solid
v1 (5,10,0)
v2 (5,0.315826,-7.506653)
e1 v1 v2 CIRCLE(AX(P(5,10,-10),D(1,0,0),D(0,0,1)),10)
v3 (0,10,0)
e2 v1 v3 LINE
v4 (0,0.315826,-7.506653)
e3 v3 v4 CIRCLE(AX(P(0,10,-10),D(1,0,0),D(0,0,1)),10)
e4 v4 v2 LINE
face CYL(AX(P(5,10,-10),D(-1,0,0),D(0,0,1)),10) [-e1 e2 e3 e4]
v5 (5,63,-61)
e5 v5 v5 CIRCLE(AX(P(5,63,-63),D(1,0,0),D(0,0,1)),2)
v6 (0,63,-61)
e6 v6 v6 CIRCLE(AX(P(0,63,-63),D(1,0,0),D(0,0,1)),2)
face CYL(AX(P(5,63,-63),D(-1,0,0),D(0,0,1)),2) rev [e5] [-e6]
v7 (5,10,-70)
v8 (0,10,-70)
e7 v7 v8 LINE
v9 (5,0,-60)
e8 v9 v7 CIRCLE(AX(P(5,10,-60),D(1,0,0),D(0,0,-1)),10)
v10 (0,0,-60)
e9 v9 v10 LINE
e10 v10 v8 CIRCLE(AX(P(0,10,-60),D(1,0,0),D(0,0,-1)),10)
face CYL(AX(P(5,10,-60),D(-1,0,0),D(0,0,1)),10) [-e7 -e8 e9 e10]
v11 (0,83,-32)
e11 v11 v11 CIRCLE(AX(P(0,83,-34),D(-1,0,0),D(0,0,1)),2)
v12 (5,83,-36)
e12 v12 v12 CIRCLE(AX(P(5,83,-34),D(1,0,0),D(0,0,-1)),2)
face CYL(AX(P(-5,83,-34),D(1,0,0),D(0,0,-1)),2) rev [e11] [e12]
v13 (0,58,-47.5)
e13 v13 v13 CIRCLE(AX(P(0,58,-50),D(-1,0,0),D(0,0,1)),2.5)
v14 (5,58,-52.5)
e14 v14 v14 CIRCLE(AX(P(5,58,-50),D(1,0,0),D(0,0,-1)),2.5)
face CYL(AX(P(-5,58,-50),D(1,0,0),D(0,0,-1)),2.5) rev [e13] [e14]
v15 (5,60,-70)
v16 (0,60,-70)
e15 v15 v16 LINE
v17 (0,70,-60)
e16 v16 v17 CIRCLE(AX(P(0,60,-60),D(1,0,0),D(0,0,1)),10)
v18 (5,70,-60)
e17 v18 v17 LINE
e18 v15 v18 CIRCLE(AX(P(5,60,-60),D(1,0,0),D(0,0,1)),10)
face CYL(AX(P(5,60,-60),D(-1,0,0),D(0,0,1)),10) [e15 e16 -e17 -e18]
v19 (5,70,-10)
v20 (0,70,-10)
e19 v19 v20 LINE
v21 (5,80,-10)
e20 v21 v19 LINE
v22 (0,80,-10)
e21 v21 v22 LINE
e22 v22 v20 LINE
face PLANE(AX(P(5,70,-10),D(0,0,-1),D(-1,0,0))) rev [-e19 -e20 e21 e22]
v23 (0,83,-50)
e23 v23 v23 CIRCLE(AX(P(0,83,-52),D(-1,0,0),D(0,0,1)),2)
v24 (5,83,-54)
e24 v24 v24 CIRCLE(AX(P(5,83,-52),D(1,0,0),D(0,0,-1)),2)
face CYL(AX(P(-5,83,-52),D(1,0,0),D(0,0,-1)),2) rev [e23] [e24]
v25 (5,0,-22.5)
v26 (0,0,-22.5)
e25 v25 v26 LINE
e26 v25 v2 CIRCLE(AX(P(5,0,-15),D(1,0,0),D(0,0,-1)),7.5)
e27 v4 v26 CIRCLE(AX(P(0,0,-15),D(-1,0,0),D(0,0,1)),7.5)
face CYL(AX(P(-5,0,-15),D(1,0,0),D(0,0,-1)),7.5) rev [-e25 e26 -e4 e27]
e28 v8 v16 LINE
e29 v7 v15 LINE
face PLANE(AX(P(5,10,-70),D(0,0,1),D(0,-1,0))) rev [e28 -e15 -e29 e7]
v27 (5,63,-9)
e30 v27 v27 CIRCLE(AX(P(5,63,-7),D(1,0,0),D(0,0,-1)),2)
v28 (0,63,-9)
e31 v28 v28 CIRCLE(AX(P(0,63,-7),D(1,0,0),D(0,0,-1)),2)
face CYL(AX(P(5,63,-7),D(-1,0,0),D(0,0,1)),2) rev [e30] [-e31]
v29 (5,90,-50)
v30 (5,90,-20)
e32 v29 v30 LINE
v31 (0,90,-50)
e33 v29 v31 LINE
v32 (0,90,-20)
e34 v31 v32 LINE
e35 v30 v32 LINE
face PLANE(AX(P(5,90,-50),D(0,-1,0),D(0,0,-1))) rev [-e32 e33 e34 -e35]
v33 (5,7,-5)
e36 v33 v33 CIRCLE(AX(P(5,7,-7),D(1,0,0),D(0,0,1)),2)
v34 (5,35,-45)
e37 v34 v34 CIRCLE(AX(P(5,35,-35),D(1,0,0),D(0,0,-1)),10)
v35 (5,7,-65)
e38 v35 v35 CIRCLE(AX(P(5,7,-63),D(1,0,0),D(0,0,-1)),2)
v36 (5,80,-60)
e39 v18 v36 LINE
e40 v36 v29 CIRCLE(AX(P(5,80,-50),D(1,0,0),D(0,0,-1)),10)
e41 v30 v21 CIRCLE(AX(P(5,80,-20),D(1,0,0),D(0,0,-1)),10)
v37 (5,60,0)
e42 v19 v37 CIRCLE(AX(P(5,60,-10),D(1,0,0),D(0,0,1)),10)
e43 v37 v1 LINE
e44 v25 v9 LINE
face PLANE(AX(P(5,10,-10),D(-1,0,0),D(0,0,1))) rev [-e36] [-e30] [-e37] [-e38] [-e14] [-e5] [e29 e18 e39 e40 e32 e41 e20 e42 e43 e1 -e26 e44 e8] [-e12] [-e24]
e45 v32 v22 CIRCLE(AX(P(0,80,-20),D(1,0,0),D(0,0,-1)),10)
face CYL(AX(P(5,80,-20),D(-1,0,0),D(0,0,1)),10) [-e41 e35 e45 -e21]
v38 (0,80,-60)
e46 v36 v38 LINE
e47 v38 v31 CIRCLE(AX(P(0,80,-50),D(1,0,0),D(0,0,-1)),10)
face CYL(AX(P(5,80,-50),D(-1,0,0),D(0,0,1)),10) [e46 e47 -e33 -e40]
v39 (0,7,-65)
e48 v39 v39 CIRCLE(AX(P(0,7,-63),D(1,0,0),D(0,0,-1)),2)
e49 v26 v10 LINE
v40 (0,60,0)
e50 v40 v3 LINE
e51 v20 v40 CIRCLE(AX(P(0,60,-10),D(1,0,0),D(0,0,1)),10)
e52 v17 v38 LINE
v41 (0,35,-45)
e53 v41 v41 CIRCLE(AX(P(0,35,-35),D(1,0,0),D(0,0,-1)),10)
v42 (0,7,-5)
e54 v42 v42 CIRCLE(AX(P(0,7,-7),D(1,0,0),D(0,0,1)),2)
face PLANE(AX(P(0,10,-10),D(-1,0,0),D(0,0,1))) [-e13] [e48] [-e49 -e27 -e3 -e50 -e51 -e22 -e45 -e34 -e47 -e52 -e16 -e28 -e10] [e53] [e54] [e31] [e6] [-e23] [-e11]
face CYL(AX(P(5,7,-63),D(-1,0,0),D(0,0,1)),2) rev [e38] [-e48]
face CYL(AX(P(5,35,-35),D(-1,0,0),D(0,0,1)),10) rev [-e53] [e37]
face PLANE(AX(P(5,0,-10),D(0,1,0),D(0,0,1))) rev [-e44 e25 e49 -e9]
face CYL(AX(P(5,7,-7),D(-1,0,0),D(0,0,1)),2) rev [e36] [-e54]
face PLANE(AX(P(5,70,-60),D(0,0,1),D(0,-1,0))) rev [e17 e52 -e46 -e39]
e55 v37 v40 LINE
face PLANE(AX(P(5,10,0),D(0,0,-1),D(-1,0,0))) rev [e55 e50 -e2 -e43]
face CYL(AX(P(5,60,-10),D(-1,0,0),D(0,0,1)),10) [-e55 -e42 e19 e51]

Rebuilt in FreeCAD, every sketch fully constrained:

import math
import FreeCAD as App
import Part
import Sketcher
Q = App.Units.Quantity

doc = App.newDocument("Part")
body = doc.addObject("PartDesign::Body", "Body")

# Sketch on YZ plane
sketch1 = doc.addObject("Sketcher::SketchObject", "Sketch")
body.addObject(sketch1)
sketch1.AttachmentSupport = (doc.YZ_Plane, [""])
sketch1.MapMode = "FlatFace"
sketch1.addGeometry([
    Part.LineSegment(App.Vector(0, -10, 0), App.Vector(0, -60, 0)),  # 0
    Part.ArcOfCircle(Part.Circle(App.Vector(10, -60, 0), App.Vector(0, 0, 1), 10), math.radians(180), math.radians(270)),  # 1
    Part.LineSegment(App.Vector(10, -70, 0), App.Vector(60, -70, 0)),  # 2
    Part.ArcOfCircle(Part.Circle(App.Vector(60, -60, 0), App.Vector(0, 0, 1), 10), math.radians(-90), math.radians(0)),  # 3
    Part.LineSegment(App.Vector(70, -60, 0), App.Vector(80, -60, 0)),  # 4
    Part.ArcOfCircle(Part.Circle(App.Vector(80, -50, 0), App.Vector(0, 0, 1), 10), math.radians(-90), math.radians(0)),  # 5
    Part.LineSegment(App.Vector(90, -50, 0), App.Vector(90, -20, 0)),  # 6
    Part.ArcOfCircle(Part.Circle(App.Vector(80, -20, 0), App.Vector(0, 0, 1), 10), math.radians(0), math.radians(90)),  # 7
    Part.LineSegment(App.Vector(80, -10, 0), App.Vector(70, -10, 0)),  # 8
    Part.ArcOfCircle(Part.Circle(App.Vector(60, -10, 0), App.Vector(0, 0, 1), 10), math.radians(0), math.radians(90)),  # 9
    Part.LineSegment(App.Vector(60, 0, 0), App.Vector(10, 0, 0)),  # 10
    Part.ArcOfCircle(Part.Circle(App.Vector(10, -10, 0), App.Vector(0, 0, 1), 10), math.radians(90), math.radians(180)),  # 11
    Part.Circle(App.Vector(7, -7, 0), App.Vector(0, 0, 1), 2),  # 12
    Part.Circle(App.Vector(7, -63, 0), App.Vector(0, 0, 1), 2),  # 13
    Part.Circle(App.Vector(63, -7, 0), App.Vector(0, 0, 1), 2),  # 14
    Part.Circle(App.Vector(35, -35, 0), App.Vector(0, 0, 1), 10),  # 15
    Part.Circle(App.Vector(63, -63, 0), App.Vector(0, 0, 1), 2),  # 16
], False)
sketch1.addConstraint([
    Sketcher.Constraint("Tangent", 0, 2, 1, 1),
    Sketcher.Constraint("Tangent", 1, 2, 2, 1),
    Sketcher.Constraint("Tangent", 2, 2, 3, 1),
    Sketcher.Constraint("Coincident", 3, 2, 4, 1),
    Sketcher.Constraint("Tangent", 4, 2, 5, 1),
    Sketcher.Constraint("Tangent", 5, 2, 6, 1),
    Sketcher.Constraint("Tangent", 6, 2, 7, 1),
    Sketcher.Constraint("Tangent", 7, 2, 8, 1),
    Sketcher.Constraint("Coincident", 8, 2, 9, 1),
    Sketcher.Constraint("Tangent", 9, 2, 10, 1),
    Sketcher.Constraint("Tangent", 10, 2, 11, 1),
    Sketcher.Constraint("Tangent", 11, 2, 0, 1),
    Sketcher.Constraint("Vertical", 0),
    Sketcher.Constraint("Horizontal", 2),
    Sketcher.Constraint("Horizontal", 4),
    Sketcher.Constraint("Vertical", 6),
    Sketcher.Constraint("Horizontal", 8),
    Sketcher.Constraint("Horizontal", 10),
    Sketcher.Constraint("Equal", 1, 3),
    Sketcher.Constraint("Equal", 3, 5),
    Sketcher.Constraint("Equal", 5, 7),
    Sketcher.Constraint("Equal", 7, 9),
    Sketcher.Constraint("Equal", 9, 11),
    Sketcher.Constraint("Equal", 12, 13),
    Sketcher.Constraint("Equal", 13, 14),
    Sketcher.Constraint("Equal", 11, 15),
    Sketcher.Constraint("Equal", 14, 16),
    Sketcher.Constraint("PointOnObject", 0, 2, -2),
    Sketcher.Constraint("PointOnObject", 9, 2, -1),
    Sketcher.Constraint("Horizontal", 12, 3, 14, 3),
    Sketcher.Constraint("Horizontal", 13, 3, 16, 3),
    Sketcher.Constraint("Horizontal", 0, 2, 3, 2),
    Sketcher.Constraint("Horizontal", 11, 3, 7, 2),
    Sketcher.Constraint("Vertical", 3, 3, 9, 3),
    Sketcher.Constraint("Vertical", 12, 3, 13, 3),
    Sketcher.Constraint("Vertical", 14, 3, 16, 3),
    Sketcher.Constraint("Equal", 10, 0),
    Sketcher.Constraint("Diameter", 12, Q("4 mm")),
    Sketcher.Constraint("Diameter", 15, Q("20 mm")),
    Sketcher.Constraint("DistanceX", 2, 1, 2, 2, Q("50 mm")),
    Sketcher.Constraint("DistanceX", 4, 1, 4, 2, Q("10 mm")),
    Sketcher.Constraint("DistanceX", -1, 1, 12, 3, Q("7 mm")),
    Sketcher.Constraint("DistanceY", 12, 3, -1, 1, Q("7 mm")),
    Sketcher.Constraint("DistanceY", 13, 3, -1, 1, Q("63 mm")),
    Sketcher.Constraint("DistanceX", -1, 1, 14, 3, Q("63 mm")),
    Sketcher.Constraint("DistanceX", -1, 1, 15, 3, Q("35 mm")),
    Sketcher.Constraint("DistanceY", 15, 3, -1, 1, Q("35 mm")),
])
pad1 = doc.addObject("PartDesign::Pad", "Pad")
body.addObject(pad1)
pad1.Profile = sketch1
pad1.Length = 5

# Sketch on YZ plane
sketch2 = doc.addObject("Sketcher::SketchObject", "Sketch001")
body.addObject(sketch2)
sketch2.AttachmentSupport = (doc.YZ_Plane, [""])
sketch2.MapMode = "FlatFace"
sketch2.AttachmentOffset = App.Placement(App.Vector(0, 0, 5), App.Rotation())
sketch2.addGeometry([
    Part.Circle(App.Vector(0, -15, 0), App.Vector(0, 0, 1), 7.5),
    Part.Circle(App.Vector(58, -50, 0), App.Vector(0, 0, 1), 2.5),
    Part.Circle(App.Vector(83, -52, 0), App.Vector(0, 0, 1), 2),
    Part.Circle(App.Vector(83, -34, 0), App.Vector(0, 0, 1), 2),
], False)
sketch2.addConstraint([
    Sketcher.Constraint("Equal", 2, 3),
    Sketcher.Constraint("PointOnObject", 0, 3, -2),
    Sketcher.Constraint("Vertical", 2, 3, 3, 3),
    Sketcher.Constraint("Diameter", 0, Q("15 mm")),
    Sketcher.Constraint("Diameter", 1, Q("5 mm")),
    Sketcher.Constraint("Diameter", 2, Q("4 mm")),
    Sketcher.Constraint("DistanceY", 0, 3, -1, 1, Q("15 mm")),
    Sketcher.Constraint("DistanceX", -1, 1, 1, 3, Q("58 mm")),
    Sketcher.Constraint("DistanceY", 1, 3, -1, 1, Q("50 mm")),
    Sketcher.Constraint("DistanceX", -1, 1, 2, 3, Q("83 mm")),
    Sketcher.Constraint("DistanceY", 2, 3, -1, 1, Q("52 mm")),
    Sketcher.Constraint("DistanceY", 3, 3, -1, 1, Q("34 mm")),
])
pocket1 = doc.addObject("PartDesign::Pocket", "Pocket")
body.addObject(pocket1)
pocket1.Profile = sketch2
pocket1.Length = 10

doc.recompute()
